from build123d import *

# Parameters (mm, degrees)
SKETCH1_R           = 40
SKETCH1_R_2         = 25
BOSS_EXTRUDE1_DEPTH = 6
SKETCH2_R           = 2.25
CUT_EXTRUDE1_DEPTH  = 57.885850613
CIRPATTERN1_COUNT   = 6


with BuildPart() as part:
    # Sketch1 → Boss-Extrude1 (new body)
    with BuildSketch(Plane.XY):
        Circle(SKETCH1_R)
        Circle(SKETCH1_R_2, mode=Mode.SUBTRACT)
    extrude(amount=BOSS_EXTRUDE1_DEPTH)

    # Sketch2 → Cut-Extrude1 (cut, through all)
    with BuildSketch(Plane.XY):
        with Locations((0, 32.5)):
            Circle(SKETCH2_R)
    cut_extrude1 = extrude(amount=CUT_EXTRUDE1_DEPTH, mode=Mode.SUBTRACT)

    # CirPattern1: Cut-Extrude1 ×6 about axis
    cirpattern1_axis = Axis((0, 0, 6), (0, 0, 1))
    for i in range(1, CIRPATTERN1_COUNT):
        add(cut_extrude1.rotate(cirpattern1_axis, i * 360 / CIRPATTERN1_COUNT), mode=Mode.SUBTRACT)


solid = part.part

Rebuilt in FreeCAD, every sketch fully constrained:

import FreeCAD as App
import Part
import Sketcher
from FreeCAD import Vector

doc = App.newDocument("Part")
body = doc.addObject("PartDesign::Body", "Body")

# Sketch on XY plane
sketch1 = body.newObject("Sketcher::SketchObject", "Sketch")
sketch1.AttachmentSupport = (doc.getObject("XY_Plane"), [""])
sketch1.MapMode = "FlatFace"
sketch1.addGeometry(Part.Circle(Vector(0, 0, 0), Vector(0, 0, 1), 40), False)
sketch1.addGeometry(Part.Circle(Vector(0, 0, 0), Vector(0, 0, 1), 25), False)
sketch1.addConstraint(Sketcher.Constraint("Coincident", 0, 3, -1, 1))
sketch1.addConstraint(Sketcher.Constraint("Coincident", 1, 3, -1, 1))
sketch1.addConstraint(Sketcher.Constraint("Diameter", 0, 80.0))
sketch1.addConstraint(Sketcher.Constraint("Diameter", 1, 50.0))
pad1 = body.newObject("PartDesign::Pad", "Pad")
pad1.Profile = sketch1
pad1.Length = 6

# Sketch on XY plane
sketch2 = body.newObject("Sketcher::SketchObject", "Sketch001")
sketch2.AttachmentSupport = (doc.getObject("XY_Plane"), [""])
sketch2.MapMode = "FlatFace"
sketch2.addGeometry(Part.Circle(Vector(0, 32.5, 0), Vector(0, 0, 1), 2.2), False)
sketch2.addConstraint(Sketcher.Constraint("PointOnObject", 0, 3, -2))
sketch2.addConstraint(Sketcher.Constraint("Diameter", 0, 4.5))
sketch2.addConstraint(Sketcher.Constraint("DistanceY", -1, 1, 0, 3, 32.5))
pocket1 = body.newObject("PartDesign::Pocket", "Pocket")
pocket1.Profile = sketch2
pocket1.Type = "ThroughAll"
pocket1.Reversed = True
doc.recompute()

polarpattern = body.newObject("PartDesign::PolarPattern", "PolarPattern")
polarpattern.Originals = [pocket1]
polarpattern.Axis = (doc.getObject("Z_Axis"), [""])
polarpattern.Angle = 360
polarpattern.Occurrences = 6
body.Tip = polarpattern

doc.recompute()
